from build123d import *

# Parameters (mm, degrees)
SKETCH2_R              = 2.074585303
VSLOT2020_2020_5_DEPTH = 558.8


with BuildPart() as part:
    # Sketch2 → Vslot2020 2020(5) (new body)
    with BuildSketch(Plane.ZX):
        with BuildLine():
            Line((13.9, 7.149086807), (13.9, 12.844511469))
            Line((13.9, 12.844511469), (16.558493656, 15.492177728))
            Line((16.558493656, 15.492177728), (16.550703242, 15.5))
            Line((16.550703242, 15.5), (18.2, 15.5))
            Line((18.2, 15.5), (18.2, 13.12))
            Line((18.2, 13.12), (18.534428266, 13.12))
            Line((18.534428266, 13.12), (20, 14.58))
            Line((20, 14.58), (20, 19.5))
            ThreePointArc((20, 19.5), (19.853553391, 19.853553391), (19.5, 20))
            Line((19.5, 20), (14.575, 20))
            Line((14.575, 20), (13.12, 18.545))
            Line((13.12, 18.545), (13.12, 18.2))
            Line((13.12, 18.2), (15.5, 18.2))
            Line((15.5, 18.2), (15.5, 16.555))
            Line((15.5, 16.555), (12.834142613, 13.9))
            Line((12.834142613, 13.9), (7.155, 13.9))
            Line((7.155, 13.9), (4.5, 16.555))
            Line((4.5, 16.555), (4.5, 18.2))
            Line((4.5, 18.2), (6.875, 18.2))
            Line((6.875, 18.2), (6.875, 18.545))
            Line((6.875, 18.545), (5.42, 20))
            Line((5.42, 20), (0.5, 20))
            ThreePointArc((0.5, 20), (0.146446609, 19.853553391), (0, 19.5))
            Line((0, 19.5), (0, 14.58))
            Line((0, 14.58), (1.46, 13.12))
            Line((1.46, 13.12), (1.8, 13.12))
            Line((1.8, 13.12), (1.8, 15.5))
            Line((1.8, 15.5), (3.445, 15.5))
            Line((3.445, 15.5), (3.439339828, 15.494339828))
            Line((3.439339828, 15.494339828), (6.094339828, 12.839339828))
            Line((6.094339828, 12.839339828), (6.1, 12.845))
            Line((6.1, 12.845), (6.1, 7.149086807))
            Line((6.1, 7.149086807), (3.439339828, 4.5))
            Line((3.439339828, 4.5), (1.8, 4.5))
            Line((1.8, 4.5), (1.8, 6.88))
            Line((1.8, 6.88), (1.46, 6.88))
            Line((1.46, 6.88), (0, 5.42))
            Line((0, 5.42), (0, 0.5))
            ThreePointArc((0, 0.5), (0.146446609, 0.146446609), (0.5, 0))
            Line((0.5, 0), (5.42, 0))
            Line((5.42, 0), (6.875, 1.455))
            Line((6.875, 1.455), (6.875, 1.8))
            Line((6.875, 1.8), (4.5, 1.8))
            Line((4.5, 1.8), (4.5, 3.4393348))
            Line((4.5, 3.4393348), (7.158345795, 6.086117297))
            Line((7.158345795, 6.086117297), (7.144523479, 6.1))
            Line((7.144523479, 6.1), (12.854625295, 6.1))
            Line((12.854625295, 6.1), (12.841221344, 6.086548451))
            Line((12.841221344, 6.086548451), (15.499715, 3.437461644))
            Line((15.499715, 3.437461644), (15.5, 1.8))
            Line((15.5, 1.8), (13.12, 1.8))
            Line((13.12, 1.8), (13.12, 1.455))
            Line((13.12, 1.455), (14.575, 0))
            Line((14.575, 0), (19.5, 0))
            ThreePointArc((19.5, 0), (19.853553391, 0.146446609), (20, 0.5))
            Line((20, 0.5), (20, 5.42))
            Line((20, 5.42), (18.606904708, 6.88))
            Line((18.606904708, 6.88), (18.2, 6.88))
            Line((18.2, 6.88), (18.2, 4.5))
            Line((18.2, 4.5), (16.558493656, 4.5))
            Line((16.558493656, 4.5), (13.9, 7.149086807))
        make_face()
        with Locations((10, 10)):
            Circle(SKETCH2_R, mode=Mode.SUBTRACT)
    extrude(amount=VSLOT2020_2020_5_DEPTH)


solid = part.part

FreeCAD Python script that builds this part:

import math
import FreeCAD as App
import Part
import Sketcher
from FreeCAD import Vector
Q = App.Units.Quantity

doc = App.newDocument("Part")
body = doc.addObject("PartDesign::Body", "Body")

sketch1 = doc.addObject("Sketcher::SketchObject", "Sketch")
body.addObject(sketch1)
sketch1.AttachmentSupport = (doc.XZ_Plane, [""])
sketch1.MapMode = "FlatFace"
sketch1.addGeometry([
    Part.LineSegment(Vector(7.149087, 13.9, 0), Vector(12.844511, 13.9, 0)),
    Part.LineSegment(Vector(12.844511, 13.9, 0), Vector(15.492178, 16.558494, 0)),
    Part.LineSegment(Vector(15.492178, 16.558494, 0), Vector(15.5, 16.550703, 0)),
    Part.LineSegment(Vector(15.5, 16.550703, 0), Vector(15.5, 18.2, 0)),
    Part.LineSegment(Vector(15.5, 18.2, 0), Vector(13.12, 18.2, 0)),
    Part.LineSegment(Vector(13.12, 18.2, 0), Vector(13.12, 18.534428, 0)),
    Part.LineSegment(Vector(13.12, 18.534428, 0), Vector(14.58, 20, 0)),
    Part.LineSegment(Vector(14.58, 20, 0), Vector(19.5, 20, 0)),
    Part.ArcOfCircle(Part.Circle(Vector(19.5, 19.5, 0), Vector(0, 0, 1), 0.5), math.radians(0), math.radians(90)),
    Part.LineSegment(Vector(20, 19.5, 0), Vector(20, 14.575, 0)),
    Part.LineSegment(Vector(20, 14.575, 0), Vector(18.545, 13.12, 0)),
    Part.LineSegment(Vector(18.545, 13.12, 0), Vector(18.2, 13.12, 0)),
    Part.LineSegment(Vector(18.2, 13.12, 0), Vector(18.2, 15.5, 0)),
    Part.LineSegment(Vector(18.2, 15.5, 0), Vector(16.555, 15.5, 0)),
    Part.LineSegment(Vector(16.555, 15.5, 0), Vector(13.9, 12.834143, 0)),
    Part.LineSegment(Vector(13.9, 12.834143, 0), Vector(13.9, 7.155, 0)),
    Part.LineSegment(Vector(13.9, 7.155, 0), Vector(16.555, 4.5, 0)),
    Part.LineSegment(Vector(16.555, 4.5, 0), Vector(18.2, 4.5, 0)),
    Part.LineSegment(Vector(18.2, 4.5, 0), Vector(18.2, 6.875, 0)),
    Part.LineSegment(Vector(18.2, 6.875, 0), Vector(18.545, 6.875, 0)),
    Part.LineSegment(Vector(18.545, 6.875, 0), Vector(20, 5.42, 0)),
    Part.LineSegment(Vector(20, 5.42, 0), Vector(20, 0.5, 0)),
    Part.ArcOfCircle(Part.Circle(Vector(19.5, 0.5, 0), Vector(0, 0, 1), 0.5), math.radians(-90), math.radians(0)),
    Part.LineSegment(Vector(19.5, 0, 0), Vector(14.58, 0, 0)),
    Part.LineSegment(Vector(14.58, 0, 0), Vector(13.12, 1.46, 0)),
    Part.LineSegment(Vector(13.12, 1.46, 0), Vector(13.12, 1.8, 0)),
    Part.LineSegment(Vector(13.12, 1.8, 0), Vector(15.5, 1.8, 0)),
    Part.LineSegment(Vector(15.5, 1.8, 0), Vector(15.5, 3.445, 0)),
    Part.LineSegment(Vector(15.5, 3.445, 0), Vector(15.49434, 3.43934, 0)),
    Part.LineSegment(Vector(15.49434, 3.43934, 0), Vector(12.83934, 6.09434, 0)),
    Part.LineSegment(Vector(12.83934, 6.09434, 0), Vector(12.845, 6.1, 0)),
    Part.LineSegment(Vector(12.845, 6.1, 0), Vector(7.149087, 6.1, 0)),
    Part.LineSegment(Vector(7.149087, 6.1, 0), Vector(4.5, 3.43934, 0)),
    Part.LineSegment(Vector(4.5, 3.43934, 0), Vector(4.5, 1.8, 0)),
    Part.LineSegment(Vector(4.5, 1.8, 0), Vector(6.88, 1.8, 0)),
    Part.LineSegment(Vector(6.88, 1.8, 0), Vector(6.88, 1.46, 0)),
    Part.LineSegment(Vector(6.88, 1.46, 0), Vector(5.42, 0, 0)),
    Part.LineSegment(Vector(5.42, 0, 0), Vector(0.5, 0, 0)),
    Part.ArcOfCircle(Part.Circle(Vector(0.5, 0.5, 0), Vector(0, 0, 1), 0.5), math.radians(180), math.radians(270)),
    Part.LineSegment(Vector(0, 0.5, 0), Vector(0, 5.42, 0)),
    Part.LineSegment(Vector(0, 5.42, 0), Vector(1.455, 6.875, 0)),
    Part.LineSegment(Vector(1.455, 6.875, 0), Vector(1.8, 6.875, 0)),
    Part.LineSegment(Vector(1.8, 6.875, 0), Vector(1.8, 4.5, 0)),
    Part.LineSegment(Vector(1.8, 4.5, 0), Vector(3.439335, 4.5, 0)),
    Part.LineSegment(Vector(3.439335, 4.5, 0), Vector(6.086117, 7.158346, 0)),
    Part.LineSegment(Vector(6.086117, 7.158346, 0), Vector(6.1, 7.144523, 0)),
    Part.LineSegment(Vector(6.1, 7.144523, 0), Vector(6.1, 12.854625, 0)),
    Part.LineSegment(Vector(6.1, 12.854625, 0), Vector(6.086548, 12.841221, 0)),
    Part.LineSegment(Vector(6.086548, 12.841221, 0), Vector(3.437462, 15.499715, 0)),
    Part.LineSegment(Vector(3.437462, 15.499715, 0), Vector(1.8, 15.5, 0)),
    Part.LineSegment(Vector(1.8, 15.5, 0), Vector(1.8, 13.12, 0)),
    Part.LineSegment(Vector(1.8, 13.12, 0), Vector(1.455, 13.12, 0)),
    Part.LineSegment(Vector(1.455, 13.12, 0), Vector(0, 14.575, 0)),
    Part.LineSegment(Vector(0, 14.575, 0), Vector(0, 19.5, 0)),
    Part.ArcOfCircle(Part.Circle(Vector(0.5, 19.5, 0), Vector(0, 0, 1), 0.5), math.radians(90), math.radians(180)),
    Part.LineSegment(Vector(0.5, 20, 0), Vector(5.42, 20, 0)),
    Part.LineSegment(Vector(5.42, 20, 0), Vector(6.88, 18.606905, 0)),
    Part.LineSegment(Vector(6.88, 18.606905, 0), Vector(6.88, 18.2, 0)),
    Part.LineSegment(Vector(6.88, 18.2, 0), Vector(4.5, 18.2, 0)),
    Part.LineSegment(Vector(4.5, 18.2, 0), Vector(4.5, 16.558494, 0)),
    Part.LineSegment(Vector(4.5, 16.558494, 0), Vector(7.149087, 13.9, 0)),
    Part.Circle(Vector(10, 10, 0), Vector(0, 0, 1), 2.074585),
], False)
sketch1.addConstraint([
    Sketcher.Constraint("Coincident", 0, 2, 1, 1),
    Sketcher.Constraint("Coincident", 1, 2, 2, 1),
    Sketcher.Constraint("Coincident", 2, 2, 3, 1),
    Sketcher.Constraint("Coincident", 3, 2, 4, 1),
    Sketcher.Constraint("Coincident", 4, 2, 5, 1),
    Sketcher.Constraint("Coincident", 5, 2, 6, 1),
    Sketcher.Constraint("Coincident", 6, 2, 7, 1),
    Sketcher.Constraint("Tangent", 7, 2, 8, 2),
    Sketcher.Constraint("Tangent", 8, 1, 9, 1),
    Sketcher.Constraint("Coincident", 9, 2, 10, 1),
    Sketcher.Constraint("Coincident", 10, 2, 11, 1),
    Sketcher.Constraint("Coincident", 11, 2, 12, 1),
    Sketcher.Constraint("Coincident", 12, 2, 13, 1),
    Sketcher.Constraint("Coincident", 13, 2, 14, 1),
    Sketcher.Constraint("Coincident", 14, 2, 15, 1),
    Sketcher.Constraint("Coincident", 15, 2, 16, 1),
    Sketcher.Constraint("Coincident", 16, 2, 17, 1),
    Sketcher.Constraint("Coincident", 17, 2, 18, 1),
    Sketcher.Constraint("Coincident", 18, 2, 19, 1),
    Sketcher.Constraint("Coincident", 19, 2, 20, 1),
    Sketcher.Constraint("Coincident", 20, 2, 21, 1),
    Sketcher.Constraint("Tangent", 21, 2, 22, 2),
    Sketcher.Constraint("Tangent", 22, 1, 23, 1),
    Sketcher.Constraint("Coincident", 23, 2, 24, 1),
    Sketcher.Constraint("Coincident", 24, 2, 25, 1),
    Sketcher.Constraint("Coincident", 25, 2, 26, 1),
    Sketcher.Constraint("Coincident", 26, 2, 27, 1),
    Sketcher.Constraint("Coincident", 27, 2, 28, 1),
    Sketcher.Constraint("Coincident", 28, 2, 29, 1),
    Sketcher.Constraint("Coincident", 29, 2, 30, 1),
    Sketcher.Constraint("Coincident", 30, 2, 31, 1),
    Sketcher.Constraint("Coincident", 31, 2, 32, 1),
    Sketcher.Constraint("Coincident", 32, 2, 33, 1),
    Sketcher.Constraint("Coincident", 33, 2, 34, 1),
    Sketcher.Constraint("Coincident", 34, 2, 35, 1),
    Sketcher.Constraint("Coincident", 35, 2, 36, 1),
    Sketcher.Constraint("Coincident", 36, 2, 37, 1),
    Sketcher.Constraint("Tangent", 37, 2, 38, 2),
    Sketcher.Constraint("Tangent", 38, 1, 39, 1),
    Sketcher.Constraint("Coincident", 39, 2, 40, 1),
    Sketcher.Constraint("Coincident", 40, 2, 41, 1),
    Sketcher.Constraint("Coincident", 41, 2, 42, 1),
    Sketcher.Constraint("Coincident", 42, 2, 43, 1),
    Sketcher.Constraint("Coincident", 43, 2, 44, 1),
    Sketcher.Constraint("Coincident", 44, 2, 45, 1),
    Sketcher.Constraint("Coincident", 45, 2, 46, 1),
    Sketcher.Constraint("Coincident", 46, 2, 47, 1),
    Sketcher.Constraint("Coincident", 47, 2, 48, 1),
    Sketcher.Constraint("Coincident", 48, 2, 49, 1),
    Sketcher.Constraint("Coincident", 49, 2, 50, 1),
    Sketcher.Constraint("Coincident", 50, 2, 51, 1),
    Sketcher.Constraint("Coincident", 51, 2, 52, 1),
    Sketcher.Constraint("Coincident", 52, 2, 53, 1),
    Sketcher.Constraint("Tangent", 53, 2, 54, 2),
    Sketcher.Constraint("Tangent", 54, 1, 55, 1),
    Sketcher.Constraint("Coincident", 55, 2, 56, 1),
    Sketcher.Constraint("Coincident", 56, 2, 57, 1),
    Sketcher.Constraint("Coincident", 57, 2, 58, 1),
    Sketcher.Constraint("Coincident", 58, 2, 59, 1),
    Sketcher.Constraint("Coincident", 59, 2, 60, 1),
    Sketcher.Constraint("Coincident", 60, 2, 0, 1),
    Sketcher.Constraint("Horizontal", 0),
    Sketcher.Constraint("Vertical", 3),
    Sketcher.Constraint("Horizontal", 4),
    Sketcher.Constraint("Vertical", 5),
    Sketcher.Constraint("Horizontal", 7),
    Sketcher.Constraint("Vertical", 9),
    Sketcher.Constraint("Horizontal", 11),
    Sketcher.Constraint("Vertical", 12),
    Sketcher.Constraint("Horizontal", 13),
    Sketcher.Constraint("Vertical", 15),
    Sketcher.Constraint("Horizontal", 17),
    Sketcher.Constraint("Vertical", 18),
    Sketcher.Constraint("Horizontal", 19),
    Sketcher.Constraint("Vertical", 21),
    Sketcher.Constraint("Horizontal", 23),
    Sketcher.Constraint("Vertical", 25),
    Sketcher.Constraint("Horizontal", 26),
    Sketcher.Constraint("Vertical", 27),
    Sketcher.Constraint("Horizontal", 31),
    Sketcher.Constraint("Vertical", 33),
    Sketcher.Constraint("Horizontal", 34),
    Sketcher.Constraint("Vertical", 35),
    Sketcher.Constraint("Horizontal", 37),
    Sketcher.Constraint("Vertical", 39),
    Sketcher.Constraint("Horizontal", 41),
    Sketcher.Constraint("Vertical", 42),
    Sketcher.Constraint("Horizontal", 43),
    Sketcher.Constraint("Vertical", 46),
    Sketcher.Constraint("Vertical", 50),
    Sketcher.Constraint("Horizontal", 51),
    Sketcher.Constraint("Vertical", 53),
    Sketcher.Constraint("Horizontal", 55),
    Sketcher.Constraint("Vertical", 57),
    Sketcher.Constraint("Horizontal", 58),
    Sketcher.Constraint("Vertical", 59),
    Sketcher.Constraint("Equal", 8, 22),
    Sketcher.Constraint("Equal", 22, 38),
    Sketcher.Constraint("Equal", 38, 54),
    Sketcher.Constraint("PointOnObject", 22, 1, -1),
    Sketcher.Constraint("PointOnObject", 36, 2, -1),
    Sketcher.Constraint("PointOnObject", 38, 1, -2),
    Sketcher.Constraint("PointOnObject", 52, 2, -2),
    Sketcher.Constraint("Perpendicular", 1, 2),
    Sketcher.Constraint("Perpendicular", 2, 14),
    Sketcher.Constraint("Perpendicular", 10, 16),
    Sketcher.Constraint("Parallel", 16, 20),
    Sketcher.Constraint("Parallel", 20, 24),
    Sketcher.Constraint("Perpendicular", 24, 28),
    Sketcher.Constraint("Parallel", 24, 29),
    Sketcher.Constraint("Perpendicular", 29, 30),
    Sketcher.Constraint("Parallel", 30, 36),
    Sketcher.Constraint("Parallel", 36, 40),
    Sketcher.Constraint("Parallel", 32, 44),
    Sketcher.Constraint("Perpendicular", 44, 45),
    Sketcher.Constraint("Perpendicular", 47, 48),
    Sketcher.Constraint("Perpendicular", 40, 52),
    Sketcher.Constraint("Parallel", 48, 60),
    Sketcher.Constraint("Horizontal", 8, 3, 54, 3),
    Sketcher.Constraint("Horizontal", 28, 2, 32, 2),
    Sketcher.Constraint("Horizontal", 26, 2, 33, 2),
    Sketcher.Constraint("Horizontal", 24, 2, 35, 2),
    Sketcher.Constraint("Horizontal", 20, 2, 39, 2),
    Sketcher.Constraint("Horizontal", 19, 2, 40, 2),
    Sketcher.Constraint("Horizontal", 17, 2, 42, 2),
    Sketcher.Constraint("Horizontal", 13, 2, 49, 2),
    Sketcher.Constraint("Horizontal", 11, 2, 50, 2),
    Sketcher.Constraint("Horizontal", 9, 2, 52, 2),
    Sketcher.Constraint("Horizontal", 4, 2, 57, 2),
    Sketcher.Constraint("Horizontal", 1, 2, 59, 2),
    Sketcher.Constraint("Vertical", 8, 3, 22, 3),
    Sketcher.Constraint("Vertical", 13, 2, 16, 2),
    Sketcher.Constraint("Vertical", 12, 2, 17, 2),
    Sketcher.Constraint("Vertical", 10, 2, 19, 2),
    Sketcher.Constraint("Vertical", 6, 2, 23, 2),
    Sketcher.Constraint("Vertical", 5, 2, 24, 2),
    Sketcher.Constraint("Vertical", 3, 2, 26, 2),
    Sketcher.Constraint("Vertical", 42, 2, 49, 2),
    Sketcher.Constraint("Vertical", 40, 2, 51, 2),
    Sketcher.Constraint("Vertical", 36, 2, 55, 2),
    Sketcher.Constraint("Vertical", 35, 2, 56, 2),
    Sketcher.Constraint("Vertical", 33, 2, 58, 2),
    Sketcher.Constraint("Vertical", 31, 2, 60, 2),
    Sketcher.Constraint("Equal", 26, 34),
    Sketcher.Constraint("Equal", 23, 37),
    Sketcher.Constraint("Equal", 19, 41),
    Sketcher.Constraint("Equal", 58, 12),
    Sketcher.Constraint("Equal", 55, 21),
    Sketcher.Constraint("Equal", 17, 27),
    Sketcher.Constraint("Equal", 16, 29),
    Sketcher.Constraint("Equal", 28, 30),
    Sketcher.Constraint("Equal", 48, 60),
    Sketcher.Constraint("Radius", 8, Q("0.5 mm")),
    Sketcher.Constraint("DistanceX", -1, 1, 61, 3, Q("10 mm")),
    Sketcher.Constraint("DistanceY", -1, 1, 61, 3, Q("10 mm")),
    Sketcher.Constraint("DistanceY", -1, 1, 6, 2, Q("20 mm")),
    Sketcher.Constraint("DistanceX", -1, 1, 8, 1, Q("20 mm")),
    Sketcher.Constraint("DistanceX", 4, 2, 4, 1, Q("2.38 mm")),
    Sketcher.Constraint("DistanceX", 7, 1, 7, 2, Q("4.92 mm")),
    Sketcher.Constraint("DistanceY", 25, 1, 25, 2, Q("0.34 mm")),
    Sketcher.Constraint("DistanceY", -1, 1, 0, 2, Q("13.9 mm")),
    Sketcher.Constraint("DistanceX", -1, 1, 2, 2, Q("15.5 mm")),
    Sketcher.Constraint("DistanceY", -1, 1, 3, 2, Q("18.2 mm")),
    Sketcher.Constraint("DistanceX", -1, 1, 11, 2, Q("18.2 mm")),
    Sketcher.Constraint("DistanceY", -1, 1, 12, 2, Q("15.5 mm")),
    Sketcher.Constraint("DistanceX", -1, 1, 14, 2, Q("13.9 mm")),
    Sketcher.Constraint("DistanceY", -1, 1, 16, 2, Q("4.5 mm")),
    Sketcher.Constraint("DistanceX", -1, 1, 45, 2, Q("6.1 mm")),
    Sketcher.Constraint("Diameter", 61, Q("4.149171 mm")),
    Sketcher.Constraint("DistanceX", 11, 2, 11, 1, Q("0.345 mm")),
    Sketcher.Constraint("DistanceX", 13, 2, 13, 1, Q("1.645 mm")),
    Sketcher.Constraint("DistanceY", 46, 1, 46, 2, Q("5.710102 mm")),
    Sketcher.Constraint("Distance", 44, Q("3.751301 mm")),
    Sketcher.Constraint("DistanceY", 5, 1, 5, 2, Q("0.334428 mm")),
    Sketcher.Constraint("DistanceY", 33, 2, 33, 1, Q("1.63934 mm")),
    Sketcher.Constraint("Distance", 1, Q("3.752029 mm")),
    Sketcher.Constraint("Distance", 2, Q("0.01104 mm")),
    Sketcher.Constraint("Distance", 45, Q("0.01959 mm")),
    Sketcher.Constraint("Distance", 47, Q("0.01899 mm")),
    Sketcher.Constraint("Distance", 49, Q("1.637462 mm")),
    Sketcher.Constraint("DistanceX", 0, 1, 0, 2, Q("5.695425 mm")),
    Sketcher.Constraint("DistanceY", 57, 2, 57, 1, Q("0.406905 mm")),
])
pad1 = doc.addObject("PartDesign::Pad", "Pad")
body.addObject(pad1)
pad1.Profile = sketch1
pad1.Length = 558.8
pad1.Reversed = True

doc.recompute()
